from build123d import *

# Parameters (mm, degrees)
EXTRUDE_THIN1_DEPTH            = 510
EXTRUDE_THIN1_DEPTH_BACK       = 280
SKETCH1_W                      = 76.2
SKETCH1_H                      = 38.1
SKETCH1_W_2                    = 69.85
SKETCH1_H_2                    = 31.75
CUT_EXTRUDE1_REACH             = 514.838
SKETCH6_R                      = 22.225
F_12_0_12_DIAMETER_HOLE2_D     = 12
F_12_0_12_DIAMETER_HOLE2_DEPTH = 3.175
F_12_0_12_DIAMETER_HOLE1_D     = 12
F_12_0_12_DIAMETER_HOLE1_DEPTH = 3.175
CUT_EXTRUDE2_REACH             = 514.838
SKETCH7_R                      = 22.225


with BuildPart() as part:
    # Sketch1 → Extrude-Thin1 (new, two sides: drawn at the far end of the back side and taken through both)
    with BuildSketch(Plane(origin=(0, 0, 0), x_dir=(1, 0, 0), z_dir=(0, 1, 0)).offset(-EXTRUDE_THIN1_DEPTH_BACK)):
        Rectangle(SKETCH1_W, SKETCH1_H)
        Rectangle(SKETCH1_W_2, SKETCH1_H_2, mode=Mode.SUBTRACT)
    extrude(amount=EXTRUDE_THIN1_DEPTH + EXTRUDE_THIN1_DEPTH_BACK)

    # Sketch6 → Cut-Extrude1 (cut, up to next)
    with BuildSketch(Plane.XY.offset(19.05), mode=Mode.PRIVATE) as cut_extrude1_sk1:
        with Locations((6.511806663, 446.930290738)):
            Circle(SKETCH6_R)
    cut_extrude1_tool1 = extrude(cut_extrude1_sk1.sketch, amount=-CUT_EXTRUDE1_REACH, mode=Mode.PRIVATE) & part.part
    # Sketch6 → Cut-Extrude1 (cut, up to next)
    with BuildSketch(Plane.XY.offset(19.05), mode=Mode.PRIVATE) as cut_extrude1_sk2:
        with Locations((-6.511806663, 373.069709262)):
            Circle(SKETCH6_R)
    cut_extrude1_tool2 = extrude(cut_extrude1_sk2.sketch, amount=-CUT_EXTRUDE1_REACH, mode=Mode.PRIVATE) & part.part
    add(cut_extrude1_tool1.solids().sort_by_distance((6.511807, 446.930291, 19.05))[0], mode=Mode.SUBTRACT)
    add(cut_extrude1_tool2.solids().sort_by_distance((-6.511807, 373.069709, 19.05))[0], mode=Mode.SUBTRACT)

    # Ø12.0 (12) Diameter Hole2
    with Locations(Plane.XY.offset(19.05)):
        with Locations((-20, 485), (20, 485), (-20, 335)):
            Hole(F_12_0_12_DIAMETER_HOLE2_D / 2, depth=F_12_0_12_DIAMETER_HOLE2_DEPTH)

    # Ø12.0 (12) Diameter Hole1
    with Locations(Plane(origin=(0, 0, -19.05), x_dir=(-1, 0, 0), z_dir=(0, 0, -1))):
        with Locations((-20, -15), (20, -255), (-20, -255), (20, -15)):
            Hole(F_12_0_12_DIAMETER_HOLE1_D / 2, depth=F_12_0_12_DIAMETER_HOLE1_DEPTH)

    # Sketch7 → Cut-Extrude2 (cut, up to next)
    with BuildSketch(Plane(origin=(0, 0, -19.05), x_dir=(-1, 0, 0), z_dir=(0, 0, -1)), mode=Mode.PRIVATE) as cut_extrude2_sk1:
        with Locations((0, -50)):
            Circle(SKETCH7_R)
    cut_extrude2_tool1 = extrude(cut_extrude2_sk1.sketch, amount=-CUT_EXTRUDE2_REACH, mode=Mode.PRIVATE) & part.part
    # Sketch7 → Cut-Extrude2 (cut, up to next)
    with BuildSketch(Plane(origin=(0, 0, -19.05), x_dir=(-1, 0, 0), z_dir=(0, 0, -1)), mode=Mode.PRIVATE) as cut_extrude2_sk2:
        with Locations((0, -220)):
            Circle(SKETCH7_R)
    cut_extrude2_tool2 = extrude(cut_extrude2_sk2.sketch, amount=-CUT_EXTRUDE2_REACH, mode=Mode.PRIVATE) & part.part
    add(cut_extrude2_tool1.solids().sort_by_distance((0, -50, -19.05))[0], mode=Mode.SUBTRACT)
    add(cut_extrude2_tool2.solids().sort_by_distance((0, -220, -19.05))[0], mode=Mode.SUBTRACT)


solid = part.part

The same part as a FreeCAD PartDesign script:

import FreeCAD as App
import Part
import Sketcher

V = App.Vector
Q = App.Units.Quantity

doc = App.newDocument("Part")
body = doc.addObject("PartDesign::Body", "Body")

# Sketch on XZ plane
sketch1 = doc.addObject("Sketcher::SketchObject", "Sketch")
body.addObject(sketch1)
sketch1.AttachmentSupport = (doc.XZ_Plane, [""])
sketch1.MapMode = "FlatFace"
sketch1.addGeometry(Part.LineSegment(V(-38, -19, 0), V(-38, 19, 0)), False)
sketch1.addGeometry(Part.LineSegment(V(-38, 19, 0), V(38, 19, 0)), False)
sketch1.addGeometry(Part.LineSegment(V(38, 19, 0), V(38, -19, 0)), False)
sketch1.addGeometry(Part.LineSegment(V(38, -19, 0), V(-38, -19, 0)), False)
sketch1.addGeometry(Part.LineSegment(V(35, 16, 0), V(-35, 16, 0)), False)
sketch1.addGeometry(Part.LineSegment(V(-35, 16, 0), V(-35, -16, 0)), False)
sketch1.addGeometry(Part.LineSegment(V(-35, -16, 0), V(35, -16, 0)), False)
sketch1.addGeometry(Part.LineSegment(V(35, -16, 0), V(35, 16, 0)), False)
sketch1.addConstraint(Sketcher.Constraint("Coincident", 0, 2, 1, 1))
sketch1.addConstraint(Sketcher.Constraint("Coincident", 1, 2, 2, 1))
sketch1.addConstraint(Sketcher.Constraint("Coincident", 2, 2, 3, 1))
sketch1.addConstraint(Sketcher.Constraint("Coincident", 3, 2, 0, 1))
sketch1.addConstraint(Sketcher.Constraint("Coincident", 4, 2, 5, 1))
sketch1.addConstraint(Sketcher.Constraint("Coincident", 5, 2, 6, 1))
sketch1.addConstraint(Sketcher.Constraint("Coincident", 6, 2, 7, 1))
sketch1.addConstraint(Sketcher.Constraint("Coincident", 7, 2, 4, 1))
sketch1.addConstraint(Sketcher.Constraint("Vertical", 0))
sketch1.addConstraint(Sketcher.Constraint("Horizontal", 1))
sketch1.addConstraint(Sketcher.Constraint("Vertical", 2))
sketch1.addConstraint(Sketcher.Constraint("Horizontal", 3))
sketch1.addConstraint(Sketcher.Constraint("Horizontal", 4))
sketch1.addConstraint(Sketcher.Constraint("Vertical", 5))
sketch1.addConstraint(Sketcher.Constraint("Horizontal", 6))
sketch1.addConstraint(Sketcher.Constraint("Vertical", 7))
sketch1.addConstraint(Sketcher.Constraint("Symmetric", 0, 2, 2, 2, -1, 1))
sketch1.addConstraint(Sketcher.Constraint("Symmetric", 4, 2, 6, 2, -1, 1))
sketch1.addConstraint(Sketcher.Constraint("DistanceX", 1, 1, 1, 2, Q("3 in")))
sketch1.addConstraint(Sketcher.Constraint("DistanceY", 0, 1, 0, 2, Q("1.5 in")))
sketch1.addConstraint(Sketcher.Constraint("DistanceX", 4, 2, 4, 1, Q("2.75 in")))
sketch1.addConstraint(Sketcher.Constraint("DistanceY", 5, 2, 5, 1, Q("1.25 in")))
pad1 = doc.addObject("PartDesign::Pad", "Pad")
body.addObject(pad1)
pad1.Profile = sketch1
pad1.Type = "TwoLengths"
pad1.Length = 510
pad1.Length2 = 280
pad1.Reversed = True

# Sketch on XY plane
sketch2 = doc.addObject("Sketcher::SketchObject", "Sketch001")
body.addObject(sketch2)
sketch2.AttachmentSupport = (doc.XY_Plane, [""])
sketch2.MapMode = "FlatFace"
sketch2.AttachmentOffset = App.Placement(V(0, 0, 0.75 * 25.4), App.Rotation())
sketch2.addGeometry(Part.Circle(V(7, 447, 0), V(0, 0, 1), 22), False)
sketch2.addConstraint(Sketcher.Constraint("Diameter", 0, Q("1.75 in")))
sketch2.addConstraint(Sketcher.Constraint("DistanceY", -1, 1, 0, 3, Q("446.930291 mm")))
sketch2.addConstraint(Sketcher.Constraint("DistanceX", -1, 1, 0, 3, Q("6.511807 mm")))
pocket1 = doc.addObject("PartDesign::Pocket", "Pocket")
body.addObject(pocket1)
pocket1.Profile = sketch2
pocket1.Type = "UpToFirst"

# Sketch on XY plane
sketch3 = doc.addObject("Sketcher::SketchObject", "Sketch002")
body.addObject(sketch3)
sketch3.AttachmentSupport = (doc.XY_Plane, [""])
sketch3.MapMode = "FlatFace"
sketch3.AttachmentOffset = App.Placement(V(0, 0, 0.75 * 25.4), App.Rotation())
sketch3.addGeometry(Part.Circle(V(-7, 373, 0), V(0, 0, 1), 22), False)
sketch3.addConstraint(Sketcher.Constraint("Diameter", 0, Q("1.75 in")))
sketch3.addConstraint(Sketcher.Constraint("DistanceY", -1, 1, 0, 3, Q("373.069709 mm")))
sketch3.addConstraint(Sketcher.Constraint("DistanceX", 0, 3, -1, 1, Q("6.511807 mm")))
pocket2 = doc.addObject("PartDesign::Pocket", "Pocket001")
body.addObject(pocket2)
pocket2.Profile = sketch3
pocket2.Type = "UpToFirst"

# Sketch on XY plane
sketch4 = doc.addObject("Sketcher::SketchObject", "Sketch003")
body.addObject(sketch4)
sketch4.AttachmentSupport = (doc.XY_Plane, [""])
sketch4.MapMode = "FlatFace"
sketch4.AttachmentOffset = App.Placement(V(0, 0, 0.75 * 25.4), App.Rotation())
sketch4.addGeometry(Part.Circle(V(-20, 485, 0), V(0, 0, 1), 6), False)
sketch4.addGeometry(Part.Circle(V(20, 485, 0), V(0, 0, 1), 6), False)
sketch4.addGeometry(Part.Circle(V(-20, 335, 0), V(0, 0, 1), 6), False)
sketch4.addConstraint(Sketcher.Constraint("Equal", 0, 1))
sketch4.addConstraint(Sketcher.Constraint("Equal", 1, 2))
sketch4.addConstraint(Sketcher.Constraint("Symmetric", 0, 3, 1, 3, -2))
sketch4.addConstraint(Sketcher.Constraint("Vertical", 0, 3, 2, 3))
sketch4.addConstraint(Sketcher.Constraint("Diameter", 0, Q("12 mm")))
sketch4.addConstraint(Sketcher.Constraint("DistanceX", 0, 3, -1, 1, Q("20 mm")))
sketch4.addConstraint(Sketcher.Constraint("DistanceY", -1, 1, 0, 3, Q("485 mm")))
sketch4.addConstraint(Sketcher.Constraint("DistanceY", -1, 1, 2, 3, Q("335 mm")))
doc.recompute()
hole = doc.addObject("PartDesign::Hole", "Hole")
body.addObject(hole)
hole.Profile = sketch4
hole.ThreadType = "None"
hole.Diameter = 12
hole.DepthType = "Dimension"
hole.Depth = Q("0.125 in")
hole.DrillPoint = "Flat"

# Sketch on XY plane
sketch5 = doc.addObject("Sketcher::SketchObject", "Sketch004")
body.addObject(sketch5)
sketch5.AttachmentSupport = (doc.XY_Plane, [""])
sketch5.MapMode = "FlatFace"
sketch5.AttachmentOffset = App.Placement(V(0, 0, -0.75 * 25.4), App.Rotation())
sketch5.addGeometry(Part.Circle(V(20, -15, 0), V(0, 0, 1), 6), False)
sketch5.addGeometry(Part.Circle(V(-20, -255, 0), V(0, 0, 1), 6), False)
sketch5.addGeometry(Part.Circle(V(20, -255, 0), V(0, 0, 1), 6), False)
sketch5.addGeometry(Part.Circle(V(-20, -15, 0), V(0, 0, 1), 6), False)
sketch5.addConstraint(Sketcher.Constraint("Equal", 0, 1))
sketch5.addConstraint(Sketcher.Constraint("Equal", 1, 2))
sketch5.addConstraint(Sketcher.Constraint("Equal", 2, 3))
sketch5.addConstraint(Sketcher.Constraint("Symmetric", 1, 3, 2, 3, -2))
sketch5.addConstraint(Sketcher.Constraint("Symmetric", 0, 3, 3, 3, -2))
sketch5.addConstraint(Sketcher.Constraint("Vertical", 0, 3, 2, 3))
sketch5.addConstraint(Sketcher.Constraint("Diameter", 0, Q("12 mm")))
sketch5.addConstraint(Sketcher.Constraint("DistanceX", -1, 1, 0, 3, Q("20 mm")))
sketch5.addConstraint(Sketcher.Constraint("DistanceY", 0, 3, -1, 1, Q("15 mm")))
sketch5.addConstraint(Sketcher.Constraint("DistanceY", 1, 3, -1, 1, Q("255 mm")))
doc.recompute()
hole2 = doc.addObject("PartDesign::Hole", "Hole001")
body.addObject(hole2)
hole2.Profile = sketch5
hole2.ThreadType = "None"
hole2.Diameter = 12
hole2.DepthType = "Dimension"
hole2.Depth = Q("0.125 in")
hole2.DrillPoint = "Flat"
hole2.Reversed = True

# Sketch on XY plane
sketch6 = doc.addObject("Sketcher::SketchObject", "Sketch005")
body.addObject(sketch6)
sketch6.AttachmentSupport = (doc.XY_Plane, [""])
sketch6.MapMode = "FlatFace"
sketch6.AttachmentOffset = App.Placement(V(0, 0, -0.75 * 25.4), App.Rotation())
sketch6.addGeometry(Part.Circle(V(0, -50, 0), V(0, 0, 1), 22), False)
sketch6.addConstraint(Sketcher.Constraint("PointOnObject", 0, 3, -2))
sketch6.addConstraint(Sketcher.Constraint("Diameter", 0, Q("1.75 in")))
sketch6.addConstraint(Sketcher.Constraint("DistanceY", 0, 3, -1, 1, Q("50 mm")))
pocket3 = doc.addObject("PartDesign::Pocket", "Pocket002")
body.addObject(pocket3)
pocket3.Profile = sketch6
pocket3.Type = "UpToFirst"
pocket3.Reversed = True

# Sketch on XY plane
sketch7 = doc.addObject("Sketcher::SketchObject", "Sketch006")
body.addObject(sketch7)
sketch7.AttachmentSupport = (doc.XY_Plane, [""])
sketch7.MapMode = "FlatFace"
sketch7.AttachmentOffset = App.Placement(V(0, 0, -0.75 * 25.4), App.Rotation())
sketch7.addGeometry(Part.Circle(V(0, -220, 0), V(0, 0, 1), 22), False)
sketch7.addConstraint(Sketcher.Constraint("PointOnObject", 0, 3, -2))
sketch7.addConstraint(Sketcher.Constraint("Diameter", 0, Q("1.75 in")))
sketch7.addConstraint(Sketcher.Constraint("DistanceY", 0, 3, -1, 1, Q("220 mm")))
pocket4 = doc.addObject("PartDesign::Pocket", "Pocket003")
body.addObject(pocket4)
pocket4.Profile = sketch7
pocket4.Type = "UpToFirst"
pocket4.Reversed = True

doc.recompute()
